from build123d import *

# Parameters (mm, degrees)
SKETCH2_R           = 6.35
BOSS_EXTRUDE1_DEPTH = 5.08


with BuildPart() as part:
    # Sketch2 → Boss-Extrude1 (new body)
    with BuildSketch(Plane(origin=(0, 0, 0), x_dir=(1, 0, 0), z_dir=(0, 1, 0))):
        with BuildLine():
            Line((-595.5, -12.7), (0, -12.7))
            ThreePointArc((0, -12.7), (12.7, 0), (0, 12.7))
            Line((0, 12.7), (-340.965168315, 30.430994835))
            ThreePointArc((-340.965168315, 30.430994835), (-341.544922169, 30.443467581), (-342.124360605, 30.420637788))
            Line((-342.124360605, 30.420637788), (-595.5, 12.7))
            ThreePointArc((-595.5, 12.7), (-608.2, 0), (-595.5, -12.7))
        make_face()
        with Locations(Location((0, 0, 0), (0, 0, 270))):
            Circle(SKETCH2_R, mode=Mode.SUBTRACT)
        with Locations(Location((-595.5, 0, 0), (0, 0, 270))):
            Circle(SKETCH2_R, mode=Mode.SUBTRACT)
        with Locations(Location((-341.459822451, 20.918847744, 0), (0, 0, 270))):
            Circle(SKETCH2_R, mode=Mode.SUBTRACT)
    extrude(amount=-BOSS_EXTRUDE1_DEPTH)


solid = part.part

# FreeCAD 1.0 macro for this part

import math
import FreeCAD as App
import Part
import Sketcher
from FreeCAD import Vector
Q = App.Units.Quantity

doc = App.newDocument("Part")
body = doc.addObject("PartDesign::Body", "Body")

# Sketch on XZ plane
sketch1 = doc.addObject("Sketcher::SketchObject", "Sketch")
body.addObject(sketch1)
sketch1.AttachmentSupport = (doc.XZ_Plane, [""])
sketch1.MapMode = "FlatFace"
sketch1.addGeometry([
    Part.LineSegment(Vector(-595.5, 12.7, 0), Vector(0, 12.7, 0)),  # 0
    Part.ArcOfCircle(Part.Circle(Vector(0, 0, 0), Vector(0, 0, 1), 12.7), math.radians(-90), math.radians(90)),  # 1
    Part.LineSegment(Vector(0, -12.7, 0), Vector(-341, -30.4, 0)),  # 2
    Part.ArcOfCircle(Part.Circle(Vector(-341.5, -20.9, 0), Vector(0, 0, 1), 9.5), math.radians(-94), math.radians(-87.02)),  # 3
    Part.LineSegment(Vector(-342.1, -30.4, 0), Vector(-595.5, -12.7, 0)),  # 4
    Part.ArcOfCircle(Part.Circle(Vector(-595.5, 0, 0), Vector(0, 0, 1), 12.7), math.radians(90), math.radians(270)),  # 5
    Part.Circle(Vector(-595.5, 0, 0), Vector(0, 0, 1), 6.3),  # 6
    Part.Circle(Vector(0, 0, 0), Vector(0, 0, 1), 6.3),  # 7
    Part.Circle(Vector(-341.5, -20.9, 0), Vector(0, 0, 1), 6.3),  # 8
], False)
sketch1.addConstraint([
    Sketcher.Constraint("Tangent", 0, 2, 1, 2),
    Sketcher.Constraint("Coincident", 1, 1, 2, 1),
    Sketcher.Constraint("Tangent", 2, 2, 3, 2),
    Sketcher.Constraint("Tangent", 3, 1, 4, 1),
    Sketcher.Constraint("Coincident", 4, 2, 5, 2),
    Sketcher.Constraint("Tangent", 5, 1, 0, 1),
    Sketcher.Constraint("Horizontal", 0),
    Sketcher.Constraint("Coincident", 1, 3, -1, 1),
    Sketcher.Constraint("Coincident", 7, 3, -1, 1),
    Sketcher.Constraint("Coincident", 6, 3, 5, 3),
    Sketcher.Constraint("Coincident", 8, 3, 3, 3),
    Sketcher.Constraint("Equal", 1, 5),
    Sketcher.Constraint("Equal", 6, 7),
    Sketcher.Constraint("Equal", 7, 8),
    Sketcher.Constraint("PointOnObject", 1, 1, -2),
    Sketcher.Constraint("Vertical", 6, 3, 4, 2),
    Sketcher.Constraint("Diameter", 6, Q("0.5 in")),
    Sketcher.Constraint("Radius", 1, Q("0.5 in")),
    Sketcher.Constraint("Radius", 3, Q("0.375 in")),
    Sketcher.Constraint("DistanceX", 0, 1, 0, 2, Q("595.5 mm")),
    Sketcher.Constraint("DistanceX", 3, 3, -1, 1, Q("13.4433001 in")),
    Sketcher.Constraint("Distance", 4, Q("253.994558 mm")),
])
pad1 = doc.addObject("PartDesign::Pad", "Pad")
body.addObject(pad1)
pad1.Profile = sketch1
pad1.Length = Q("0.2 in")

doc.recompute()
